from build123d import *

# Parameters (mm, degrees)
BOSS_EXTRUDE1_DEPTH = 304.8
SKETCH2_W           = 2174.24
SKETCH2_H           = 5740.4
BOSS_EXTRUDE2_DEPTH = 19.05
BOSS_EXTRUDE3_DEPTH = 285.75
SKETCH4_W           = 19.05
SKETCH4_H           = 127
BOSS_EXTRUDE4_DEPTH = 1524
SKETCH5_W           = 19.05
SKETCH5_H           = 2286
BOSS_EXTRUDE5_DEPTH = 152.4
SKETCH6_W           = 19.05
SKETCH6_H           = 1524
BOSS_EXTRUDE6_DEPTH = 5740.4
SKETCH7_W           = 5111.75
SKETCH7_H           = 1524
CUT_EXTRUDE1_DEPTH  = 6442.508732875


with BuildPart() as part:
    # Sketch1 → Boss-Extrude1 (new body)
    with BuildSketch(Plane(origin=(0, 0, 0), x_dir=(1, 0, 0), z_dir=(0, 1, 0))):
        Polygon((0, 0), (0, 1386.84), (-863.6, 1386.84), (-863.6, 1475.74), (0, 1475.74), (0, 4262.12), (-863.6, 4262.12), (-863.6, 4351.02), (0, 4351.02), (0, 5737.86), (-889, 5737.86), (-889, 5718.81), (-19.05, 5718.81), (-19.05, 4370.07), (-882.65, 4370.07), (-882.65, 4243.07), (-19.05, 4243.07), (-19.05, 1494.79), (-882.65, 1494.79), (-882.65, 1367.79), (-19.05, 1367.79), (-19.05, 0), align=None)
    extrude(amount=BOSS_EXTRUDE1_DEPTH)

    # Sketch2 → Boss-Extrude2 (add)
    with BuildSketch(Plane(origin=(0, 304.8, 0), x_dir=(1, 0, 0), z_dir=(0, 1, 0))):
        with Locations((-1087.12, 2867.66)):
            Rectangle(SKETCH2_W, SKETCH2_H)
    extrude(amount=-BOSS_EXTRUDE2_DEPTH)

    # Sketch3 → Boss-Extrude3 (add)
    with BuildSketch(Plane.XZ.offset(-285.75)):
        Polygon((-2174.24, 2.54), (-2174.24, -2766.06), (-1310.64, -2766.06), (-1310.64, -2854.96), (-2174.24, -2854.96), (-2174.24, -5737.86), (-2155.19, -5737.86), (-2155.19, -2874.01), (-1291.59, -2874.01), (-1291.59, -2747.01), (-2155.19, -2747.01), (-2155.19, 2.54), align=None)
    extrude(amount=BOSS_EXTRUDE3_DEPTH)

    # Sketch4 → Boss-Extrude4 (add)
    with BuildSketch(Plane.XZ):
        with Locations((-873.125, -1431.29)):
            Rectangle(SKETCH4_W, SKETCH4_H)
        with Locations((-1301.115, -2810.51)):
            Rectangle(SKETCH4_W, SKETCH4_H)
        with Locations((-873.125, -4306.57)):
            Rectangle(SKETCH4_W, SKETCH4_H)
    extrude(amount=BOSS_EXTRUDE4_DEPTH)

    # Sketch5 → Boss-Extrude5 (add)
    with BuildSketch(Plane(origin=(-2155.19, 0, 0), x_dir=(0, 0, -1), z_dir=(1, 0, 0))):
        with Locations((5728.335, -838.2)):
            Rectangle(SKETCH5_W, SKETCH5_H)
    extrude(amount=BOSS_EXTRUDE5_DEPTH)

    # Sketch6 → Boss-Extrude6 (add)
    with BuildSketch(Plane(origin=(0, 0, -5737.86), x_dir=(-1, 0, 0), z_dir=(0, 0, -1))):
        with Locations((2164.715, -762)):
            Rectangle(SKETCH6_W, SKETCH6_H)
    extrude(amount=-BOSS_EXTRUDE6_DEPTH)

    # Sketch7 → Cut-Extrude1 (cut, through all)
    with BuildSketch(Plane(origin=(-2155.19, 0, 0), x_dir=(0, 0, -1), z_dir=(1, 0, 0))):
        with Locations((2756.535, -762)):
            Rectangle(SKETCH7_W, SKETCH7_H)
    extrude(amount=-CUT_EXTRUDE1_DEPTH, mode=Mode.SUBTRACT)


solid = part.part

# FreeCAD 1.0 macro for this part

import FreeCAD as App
import Part
import Sketcher
Q = App.Units.Quantity

doc = App.newDocument("Part")
body = doc.addObject("PartDesign::Body", "Body")

sketch1 = body.newObject("Sketcher::SketchObject", "Sketch")
sketch1.AttachmentSupport = (doc.getObject("XZ_Plane"), [""])
sketch1.MapMode = "FlatFace"
sketch1.addGeometry(Part.LineSegment(App.Vector(0, 0, 0), App.Vector(0, -1386.84, 0)), False)
sketch1.addGeometry(Part.LineSegment(App.Vector(0, -1386.84, 0), App.Vector(-863.6, -1386.84, 0)), False)
sketch1.addGeometry(Part.LineSegment(App.Vector(-863.6, -1386.84, 0), App.Vector(-863.6, -1475.74, 0)), False)
sketch1.addGeometry(Part.LineSegment(App.Vector(-863.6, -1475.74, 0), App.Vector(0, -1475.74, 0)), False)
sketch1.addGeometry(Part.LineSegment(App.Vector(0, -1475.74, 0), App.Vector(0, -4262.12, 0)), False)
sketch1.addGeometry(Part.LineSegment(App.Vector(0, -4262.12, 0), App.Vector(-863.6, -4262.12, 0)), False)
sketch1.addGeometry(Part.LineSegment(App.Vector(-863.6, -4262.12, 0), App.Vector(-863.6, -4351.02, 0)), False)
sketch1.addGeometry(Part.LineSegment(App.Vector(-863.6, -4351.02, 0), App.Vector(0, -4351.02, 0)), False)
sketch1.addGeometry(Part.LineSegment(App.Vector(0, -4351.02, 0), App.Vector(0, -5737.86, 0)), False)
sketch1.addGeometry(Part.LineSegment(App.Vector(0, -5737.86, 0), App.Vector(-889, -5737.86, 0)), False)
sketch1.addGeometry(Part.LineSegment(App.Vector(-889, -5737.86, 0), App.Vector(-889, -5718.81, 0)), False)
sketch1.addGeometry(Part.LineSegment(App.Vector(-889, -5718.81, 0), App.Vector(-19.05, -5718.81, 0)), False)
sketch1.addGeometry(Part.LineSegment(App.Vector(-19.05, -5718.81, 0), App.Vector(-19.05, -4370.07, 0)), False)
sketch1.addGeometry(Part.LineSegment(App.Vector(-19.05, -4370.07, 0), App.Vector(-882.65, -4370.07, 0)), False)
sketch1.addGeometry(Part.LineSegment(App.Vector(-882.65, -4370.07, 0), App.Vector(-882.65, -4243.07, 0)), False)
sketch1.addGeometry(Part.LineSegment(App.Vector(-882.65, -4243.07, 0), App.Vector(-19.05, -4243.07, 0)), False)
sketch1.addGeometry(Part.LineSegment(App.Vector(-19.05, -4243.07, 0), App.Vector(-19.05, -1494.79, 0)), False)
sketch1.addGeometry(Part.LineSegment(App.Vector(-19.05, -1494.79, 0), App.Vector(-882.65, -1494.79, 0)), False)
sketch1.addGeometry(Part.LineSegment(App.Vector(-882.65, -1494.79, 0), App.Vector(-882.65, -1367.79, 0)), False)
sketch1.addGeometry(Part.LineSegment(App.Vector(-882.65, -1367.79, 0), App.Vector(-19.05, -1367.79, 0)), False)
sketch1.addGeometry(Part.LineSegment(App.Vector(-19.05, -1367.79, 0), App.Vector(-19.05, 0, 0)), False)
sketch1.addGeometry(Part.LineSegment(App.Vector(-19.05, 0, 0), App.Vector(0, 0, 0)), False)
sketch1.addConstraint(Sketcher.Constraint("Coincident", 0, 2, 1, 1))
sketch1.addConstraint(Sketcher.Constraint("Coincident", 1, 2, 2, 1))
sketch1.addConstraint(Sketcher.Constraint("Coincident", 2, 2, 3, 1))
sketch1.addConstraint(Sketcher.Constraint("Coincident", 3, 2, 4, 1))
sketch1.addConstraint(Sketcher.Constraint("Coincident", 4, 2, 5, 1))
sketch1.addConstraint(Sketcher.Constraint("Coincident", 5, 2, 6, 1))
sketch1.addConstraint(Sketcher.Constraint("Coincident", 6, 2, 7, 1))
sketch1.addConstraint(Sketcher.Constraint("Coincident", 7, 2, 8, 1))
sketch1.addConstraint(Sketcher.Constraint("Coincident", 8, 2, 9, 1))
sketch1.addConstraint(Sketcher.Constraint("Coincident", 9, 2, 10, 1))
sketch1.addConstraint(Sketcher.Constraint("Coincident", 10, 2, 11, 1))
sketch1.addConstraint(Sketcher.Constraint("Coincident", 11, 2, 12, 1))
sketch1.addConstraint(Sketcher.Constraint("Coincident", 12, 2, 13, 1))
sketch1.addConstraint(Sketcher.Constraint("Coincident", 13, 2, 14, 1))
sketch1.addConstraint(Sketcher.Constraint("Coincident", 14, 2, 15, 1))
sketch1.addConstraint(Sketcher.Constraint("Coincident", 15, 2, 16, 1))
sketch1.addConstraint(Sketcher.Constraint("Coincident", 16, 2, 17, 1))
sketch1.addConstraint(Sketcher.Constraint("Coincident", 17, 2, 18, 1))
sketch1.addConstraint(Sketcher.Constraint("Coincident", 18, 2, 19, 1))
sketch1.addConstraint(Sketcher.Constraint("Coincident", 19, 2, 20, 1))
sketch1.addConstraint(Sketcher.Constraint("Coincident", 20, 2, 21, 1))
sketch1.addConstraint(Sketcher.Constraint("Coincident", 21, 2, 0, 1))
sketch1.addConstraint(Sketcher.Constraint("Vertical", 0))
sketch1.addConstraint(Sketcher.Constraint("Horizontal", 1))
sketch1.addConstraint(Sketcher.Constraint("Vertical", 2))
sketch1.addConstraint(Sketcher.Constraint("Horizontal", 3))
sketch1.addConstraint(Sketcher.Constraint("Vertical", 4))
sketch1.addConstraint(Sketcher.Constraint("Horizontal", 5))
sketch1.addConstraint(Sketcher.Constraint("Vertical", 6))
sketch1.addConstraint(Sketcher.Constraint("Horizontal", 7))
sketch1.addConstraint(Sketcher.Constraint("Vertical", 8))
sketch1.addConstraint(Sketcher.Constraint("Horizontal", 9))
sketch1.addConstraint(Sketcher.Constraint("Vertical", 10))
sketch1.addConstraint(Sketcher.Constraint("Horizontal", 11))
sketch1.addConstraint(Sketcher.Constraint("Vertical", 12))
sketch1.addConstraint(Sketcher.Constraint("Horizontal", 13))
sketch1.addConstraint(Sketcher.Constraint("Vertical", 14))
sketch1.addConstraint(Sketcher.Constraint("Horizontal", 15))
sketch1.addConstraint(Sketcher.Constraint("Vertical", 16))
sketch1.addConstraint(Sketcher.Constraint("Horizontal", 17))
sketch1.addConstraint(Sketcher.Constraint("Vertical", 18))
sketch1.addConstraint(Sketcher.Constraint("Horizontal", 19))
sketch1.addConstraint(Sketcher.Constraint("Vertical", 20))
sketch1.addConstraint(Sketcher.Constraint("Horizontal", 21))
sketch1.addConstraint(Sketcher.Constraint("Coincident", 21, 2, -1, 1))
sketch1.addConstraint(Sketcher.Constraint("PointOnObject", 3, 2, -2))
sketch1.addConstraint(Sketcher.Constraint("PointOnObject", 7, 2, -2))
sketch1.addConstraint(Sketcher.Constraint("Vertical", 2, 2, 5, 2))
sketch1.addConstraint(Sketcher.Constraint("Vertical", 12, 2, 15, 2))
sketch1.addConstraint(Sketcher.Constraint("Vertical", 14, 2, 17, 2))
sketch1.addConstraint(Sketcher.Constraint("Vertical", 16, 2, 19, 2))
sketch1.addConstraint(Sketcher.Constraint("Equal", 7, 13))
sketch1.addConstraint(Sketcher.Constraint("Equal", 2, 6))
sketch1.addConstraint(Sketcher.Constraint("Equal", 0, 8))
sketch1.addConstraint(Sketcher.Constraint("Equal", 21, 10))
sketch1.addConstraint(Sketcher.Constraint("Equal", 14, 18))
sketch1.addConstraint(Sketcher.Constraint("DistanceX", 1, 2, 1, 1, Q("34 in")))
sketch1.addConstraint(Sketcher.Constraint("DistanceX", 9, 2, 9, 1, Q("35 in")))
sketch1.addConstraint(Sketcher.Constraint("DistanceY", 14, 1, 14, 2, Q("5 in")))
sketch1.addConstraint(Sketcher.Constraint("DistanceY", 0, 2, 0, 1, Q("54.6 in")))
sketch1.addConstraint(Sketcher.Constraint("DistanceY", 2, 2, 2, 1, Q("3.5 in")))
sketch1.addConstraint(Sketcher.Constraint("DistanceY", 4, 2, 4, 1, Q("109.7 in")))
sketch1.addConstraint(Sketcher.Constraint("DistanceY", 12, 1, 12, 2, Q("53.1 in")))
sketch1.addConstraint(Sketcher.Constraint("DistanceY", 16, 1, 16, 2, Q("108.2 in")))
sketch1.addConstraint(Sketcher.Constraint("DistanceX", 11, 1, 11, 2, Q("34.25 in")))
pad1 = body.newObject("PartDesign::Pad", "Pad")
pad1.Profile = sketch1
pad1.Length = Q("12 in")
pad1.Reversed = True

sketch2 = body.newObject("Sketcher::SketchObject", "Sketch001")
sketch2.AttachmentSupport = (doc.getObject("XZ_Plane"), [""])
sketch2.MapMode = "FlatFace"
sketch2.AttachmentOffset = App.Placement(App.Vector(0, 0, -12 * 25.4), App.Rotation())
sketch2.addGeometry(Part.LineSegment(App.Vector(-2174.24, -5737.86, 0), App.Vector(-2174.24, 2.54, 0)), False)
sketch2.addGeometry(Part.LineSegment(App.Vector(-2174.24, 2.54, 0), App.Vector(0, 2.54, 0)), False)
sketch2.addGeometry(Part.LineSegment(App.Vector(0, 2.54, 0), App.Vector(0, -5737.86, 0)), False)
sketch2.addGeometry(Part.LineSegment(App.Vector(0, -5737.86, 0), App.Vector(-2174.24, -5737.86, 0)), False)
sketch2.addConstraint(Sketcher.Constraint("Coincident", 0, 2, 1, 1))
sketch2.addConstraint(Sketcher.Constraint("Coincident", 1, 2, 2, 1))
sketch2.addConstraint(Sketcher.Constraint("Coincident", 2, 2, 3, 1))
sketch2.addConstraint(Sketcher.Constraint("Coincident", 3, 2, 0, 1))
sketch2.addConstraint(Sketcher.Constraint("Vertical", 0))
sketch2.addConstraint(Sketcher.Constraint("Horizontal", 1))
sketch2.addConstraint(Sketcher.Constraint("Vertical", 2))
sketch2.addConstraint(Sketcher.Constraint("Horizontal", 3))
sketch2.addConstraint(Sketcher.Constraint("PointOnObject", 1, 2, -2))
sketch2.addConstraint(Sketcher.Constraint("DistanceY", 0, 1, 0, 2, Q("226 in")))
sketch2.addConstraint(Sketcher.Constraint("DistanceX", 1, 1, 1, 2, Q("85.6 in")))
sketch2.addConstraint(Sketcher.Constraint("DistanceY", -1, 1, 0, 2, Q("0.1 in")))
pad2 = body.newObject("PartDesign::Pad", "Pad001")
pad2.Profile = sketch2
pad2.Length = Q("0.75 in")

sketch3 = body.newObject("Sketcher::SketchObject", "Sketch002")
sketch3.AttachmentSupport = (doc.getObject("XZ_Plane"), [""])
sketch3.MapMode = "FlatFace"
sketch3.AttachmentOffset = App.Placement(App.Vector(0, 0, -11.25 * 25.4), App.Rotation())
sketch3.addGeometry(Part.LineSegment(App.Vector(-2174.24, 2.54, 0), App.Vector(-2174.24, -2766.06, 0)), False)
sketch3.addGeometry(Part.LineSegment(App.Vector(-2174.24, -2766.06, 0), App.Vector(-1310.64, -2766.06, 0)), False)
sketch3.addGeometry(Part.LineSegment(App.Vector(-1310.64, -2766.06, 0), App.Vector(-1310.64, -2854.96, 0)), False)
sketch3.addGeometry(Part.LineSegment(App.Vector(-1310.64, -2854.96, 0), App.Vector(-2174.24, -2854.96, 0)), False)
sketch3.addGeometry(Part.LineSegment(App.Vector(-2174.24, -2854.96, 0), App.Vector(-2174.24, -5737.86, 0)), False)
sketch3.addGeometry(Part.LineSegment(App.Vector(-2174.24, -5737.86, 0), App.Vector(-2155.19, -5737.86, 0)), False)
sketch3.addGeometry(Part.LineSegment(App.Vector(-2155.19, -5737.86, 0), App.Vector(-2155.19, -2874.01, 0)), False)
sketch3.addGeometry(Part.LineSegment(App.Vector(-2155.19, -2874.01, 0), App.Vector(-1291.59, -2874.01, 0)), False)
sketch3.addGeometry(Part.LineSegment(App.Vector(-1291.59, -2874.01, 0), App.Vector(-1291.59, -2747.01, 0)), False)
sketch3.addGeometry(Part.LineSegment(App.Vector(-1291.59, -2747.01, 0), App.Vector(-2155.19, -2747.01, 0)), False)
sketch3.addGeometry(Part.LineSegment(App.Vector(-2155.19, -2747.01, 0), App.Vector(-2155.19, 2.54, 0)), False)
sketch3.addGeometry(Part.LineSegment(App.Vector(-2155.19, 2.54, 0), App.Vector(-2174.24, 2.54, 0)), False)
sketch3.addConstraint(Sketcher.Constraint("Coincident", 0, 2, 1, 1))
sketch3.addConstraint(Sketcher.Constraint("Coincident", 1, 2, 2, 1))
sketch3.addConstraint(Sketcher.Constraint("Coincident", 2, 2, 3, 1))
sketch3.addConstraint(Sketcher.Constraint("Coincident", 3, 2, 4, 1))
sketch3.addConstraint(Sketcher.Constraint("Coincident", 4, 2, 5, 1))
sketch3.addConstraint(Sketcher.Constraint("Coincident", 5, 2, 6, 1))
sketch3.addConstraint(Sketcher.Constraint("Coincident", 6, 2, 7, 1))
sketch3.addConstraint(Sketcher.Constraint("Coincident", 7, 2, 8, 1))
sketch3.addConstraint(Sketcher.Constraint("Coincident", 8, 2, 9, 1))
sketch3.addConstraint(Sketcher.Constraint("Coincident", 9, 2, 10, 1))
sketch3.addConstraint(Sketcher.Constraint("Coincident", 10, 2, 11, 1))
sketch3.addConstraint(Sketcher.Constraint("Coincident", 11, 2, 0, 1))
sketch3.addConstraint(Sketcher.Constraint("Vertical", 0))
sketch3.addConstraint(Sketcher.Constraint("Horizontal", 1))
sketch3.addConstraint(Sketcher.Constraint("Vertical", 2))
sketch3.addConstraint(Sketcher.Constraint("Horizontal", 3))
sketch3.addConstraint(Sketcher.Constraint("Vertical", 4))
sketch3.addConstraint(Sketcher.Constraint("Horizontal", 5))
sketch3.addConstraint(Sketcher.Constraint("Vertical", 6))
sketch3.addConstraint(Sketcher.Constraint("Horizontal", 7))
sketch3.addConstraint(Sketcher.Constraint("Vertical", 8))
sketch3.addConstraint(Sketcher.Constraint("Horizontal", 9))
sketch3.addConstraint(Sketcher.Constraint("Vertical", 10))
sketch3.addConstraint(Sketcher.Constraint("Horizontal", 11))
sketch3.addConstraint(Sketcher.Constraint("Vertical", 0, 2, 3, 2))
sketch3.addConstraint(Sketcher.Constraint("Vertical", 6, 2, 9, 2))
sketch3.addConstraint(Sketcher.Constraint("Equal", 3, 7))
sketch3.addConstraint(Sketcher.Constraint("DistanceX", 1, 1, 1, 2, Q("34 in")))
sketch3.addConstraint(Sketcher.Constraint("DistanceY", 0, 2, 0, 1, Q("109 in")))
sketch3.addConstraint(Sketcher.Constraint("DistanceY", 8, 1, 8, 2, Q("5 in")))
sketch3.addConstraint(Sketcher.Constraint("DistanceY", 2, 2, 2, 1, Q("3.5 in")))
sketch3.addConstraint(Sketcher.Constraint("DistanceY", 4, 2, 4, 1, Q("113.5 in")))
sketch3.addConstraint(Sketcher.Constraint("DistanceX", 5, 1, 5, 2, Q("0.75 in")))
sketch3.addConstraint(Sketcher.Constraint("DistanceY", 6, 1, 6, 2, Q("112.75 in")))
sketch3.addConstraint(Sketcher.Constraint("DistanceX", 0, 2, -1, 1, Q("85.6 in")))
sketch3.addConstraint(Sketcher.Constraint("DistanceY", 0, 2, -1, 1, Q("108.9 in")))
pad3 = body.newObject("PartDesign::Pad", "Pad002")
pad3.Profile = sketch3
pad3.Length = Q("11.25 in")

sketch4 = body.newObject("Sketcher::SketchObject", "Sketch003")
sketch4.AttachmentSupport = (doc.getObject("XZ_Plane"), [""])
sketch4.MapMode = "FlatFace"
sketch4.addGeometry(Part.LineSegment(App.Vector(-882.65, -1367.79, 0), App.Vector(-882.65, -1494.79, 0)), False)
sketch4.addGeometry(Part.LineSegment(App.Vector(-882.65, -1494.79, 0), App.Vector(-863.6, -1494.79, 0)), False)
sketch4.addGeometry(Part.LineSegment(App.Vector(-863.6, -1494.79, 0), App.Vector(-863.6, -1367.79, 0)), False)
sketch4.addGeometry(Part.LineSegment(App.Vector(-863.6, -1367.79, 0), App.Vector(-882.65, -1367.79, 0)), False)
sketch4.addGeometry(Part.LineSegment(App.Vector(-1310.64, -2747.01, 0), App.Vector(-1310.64, -2874.01, 0)), False)
sketch4.addGeometry(Part.LineSegment(App.Vector(-1310.64, -2874.01, 0), App.Vector(-1291.59, -2874.01, 0)), False)
sketch4.addGeometry(Part.LineSegment(App.Vector(-1291.59, -2874.01, 0), App.Vector(-1291.59, -2747.01, 0)), False)
sketch4.addGeometry(Part.LineSegment(App.Vector(-1291.59, -2747.01, 0), App.Vector(-1310.64, -2747.01, 0)), False)
sketch4.addGeometry(Part.LineSegment(App.Vector(-882.65, -4243.07, 0), App.Vector(-882.65, -4370.07, 0)), False)
sketch4.addGeometry(Part.LineSegment(App.Vector(-882.65, -4370.07, 0), App.Vector(-863.6, -4370.07, 0)), False)
sketch4.addGeometry(Part.LineSegment(App.Vector(-863.6, -4370.07, 0), App.Vector(-863.6, -4243.07, 0)), False)
sketch4.addGeometry(Part.LineSegment(App.Vector(-863.6, -4243.07, 0), App.Vector(-882.65, -4243.07, 0)), False)
sketch4.addConstraint(Sketcher.Constraint("Coincident", 0, 2, 1, 1))
sketch4.addConstraint(Sketcher.Constraint("Coincident", 1, 2, 2, 1))
sketch4.addConstraint(Sketcher.Constraint("Coincident", 2, 2, 3, 1))
sketch4.addConstraint(Sketcher.Constraint("Coincident", 3, 2, 0, 1))
sketch4.addConstraint(Sketcher.Constraint("Coincident", 4, 2, 5, 1))
sketch4.addConstraint(Sketcher.Constraint("Coincident", 5, 2, 6, 1))
sketch4.addConstraint(Sketcher.Constraint("Coincident", 6, 2, 7, 1))
sketch4.addConstraint(Sketcher.Constraint("Coincident", 7, 2, 4, 1))
sketch4.addConstraint(Sketcher.Constraint("Coincident", 8, 2, 9, 1))
sketch4.addConstraint(Sketcher.Constraint("Coincident", 9, 2, 10, 1))
sketch4.addConstraint(Sketcher.Constraint("Coincident", 10, 2, 11, 1))
sketch4.addConstraint(Sketcher.Constraint("Coincident", 11, 2, 8, 1))
sketch4.addConstraint(Sketcher.Constraint("Vertical", 0))
sketch4.addConstraint(Sketcher.Constraint("Horizontal", 1))
sketch4.addConstraint(Sketcher.Constraint("Vertical", 2))
sketch4.addConstraint(Sketcher.Constraint("Horizontal", 3))
sketch4.addConstraint(Sketcher.Constraint("Vertical", 4))
sketch4.addConstraint(Sketcher.Constraint("Horizontal", 5))
sketch4.addConstraint(Sketcher.Constraint("Vertical", 6))
sketch4.addConstraint(Sketcher.Constraint("Horizontal", 7))
sketch4.addConstraint(Sketcher.Constraint("Vertical", 8))
sketch4.addConstraint(Sketcher.Constraint("Horizontal", 9))
sketch4.addConstraint(Sketcher.Constraint("Vertical", 10))
sketch4.addConstraint(Sketcher.Constraint("Horizontal", 11))
sketch4.addConstraint(Sketcher.Constraint("Vertical", 3, 2, 8, 2))
sketch4.addConstraint(Sketcher.Constraint("Vertical", 2, 2, 9, 2))
sketch4.addConstraint(Sketcher.Constraint("Equal", 3, 5))
sketch4.addConstraint(Sketcher.Constraint("Equal", 2, 4))
sketch4.addConstraint(Sketcher.Constraint("Equal", 6, 8))
sketch4.addConstraint(Sketcher.Constraint("DistanceY", 0, 2, 0, 1, Q("5 in")))
sketch4.addConstraint(Sketcher.Constraint("DistanceX", 1, 2, -1, 1, Q("34 in")))
sketch4.addConstraint(Sketcher.Constraint("DistanceX", 1, 1, 1, 2, Q("0.75 in")))
sketch4.addConstraint(Sketcher.Constraint("DistanceX", 4, 2, -1, 1, Q("51.6 in")))
sketch4.addConstraint(Sketcher.Constraint("DistanceY", 4, 2, 0, 2, Q("54.3 in")))
sketch4.addConstraint(Sketcher.Constraint("DistanceY", 8, 2, 5, 2, Q("58.9 in")))
sketch4.addConstraint(Sketcher.Constraint("DistanceY", 0, 2, -1, 1, Q("58.85 in")))
pad4 = body.newObject("PartDesign::Pad", "Pad003")
pad4.Profile = sketch4
pad4.Length = Q("60 in")

sketch5 = body.newObject("Sketcher::SketchObject", "Sketch004")
sketch5.AttachmentSupport = (doc.getObject("YZ_Plane"), [""])
sketch5.MapMode = "FlatFace"
sketch5.AttachmentOffset = App.Placement(App.Vector(0, 0, -84.85 * 25.4), App.Rotation())
sketch5.addGeometry(Part.LineSegment(App.Vector(304.8, -5718.81, 0), App.Vector(-1981.2, -5718.81, 0)), False)
sketch5.addGeometry(Part.LineSegment(App.Vector(-1981.2, -5718.81, 0), App.Vector(-1981.2, -5737.86, 0)), False)
sketch5.addGeometry(Part.LineSegment(App.Vector(-1981.2, -5737.86, 0), App.Vector(304.8, -5737.86, 0)), False)
sketch5.addGeometry(Part.LineSegment(App.Vector(304.8, -5737.86, 0), App.Vector(304.8, -5718.81, 0)), False)
sketch5.addConstraint(Sketcher.Constraint("Coincident", 0, 2, 1, 1))
sketch5.addConstraint(Sketcher.Constraint("Coincident", 1, 2, 2, 1))
sketch5.addConstraint(Sketcher.Constraint("Coincident", 2, 2, 3, 1))
sketch5.addConstraint(Sketcher.Constraint("Coincident", 3, 2, 0, 1))
sketch5.addConstraint(Sketcher.Constraint("Horizontal", 0))
sketch5.addConstraint(Sketcher.Constraint("Vertical", 1))
sketch5.addConstraint(Sketcher.Constraint("Horizontal", 2))
sketch5.addConstraint(Sketcher.Constraint("Vertical", 3))
sketch5.addConstraint(Sketcher.Constraint("DistanceX", 0, 2, 0, 1, Q("90 in")))
sketch5.addConstraint(Sketcher.Constraint("DistanceX", 0, 2, -1, 1, Q("78 in")))
sketch5.addConstraint(Sketcher.Constraint("DistanceY", 1, 2, 1, 1, Q("0.75 in")))
sketch5.addConstraint(Sketcher.Constraint("DistanceY", 1, 2, -1, 1, Q("225.9 in")))
pad5 = body.newObject("PartDesign::Pad", "Pad004")
pad5.Profile = sketch5
pad5.Length = Q("6 in")

sketch6 = body.newObject("Sketcher::SketchObject", "Sketch005")
sketch6.AttachmentSupport = (doc.getObject("XY_Plane"), [""])
sketch6.MapMode = "FlatFace"
sketch6.AttachmentOffset = App.Placement(App.Vector(0, 0, -225.9 * 25.4), App.Rotation())
sketch6.addGeometry(Part.LineSegment(App.Vector(-2155.19, 0, 0), App.Vector(-2155.19, -1524, 0)), False)
sketch6.addGeometry(Part.LineSegment(App.Vector(-2155.19, -1524, 0), App.Vector(-2174.24, -1524, 0)), False)
sketch6.addGeometry(Part.LineSegment(App.Vector(-2174.24, -1524, 0), App.Vector(-2174.24, 0, 0)), False)
sketch6.addGeometry(Part.LineSegment(App.Vector(-2174.24, 0, 0), App.Vector(-2155.19, 0, 0)), False)
sketch6.addConstraint(Sketcher.Constraint("Coincident", 0, 2, 1, 1))
sketch6.addConstraint(Sketcher.Constraint("Coincident", 1, 2, 2, 1))
sketch6.addConstraint(Sketcher.Constraint("Coincident", 2, 2, 3, 1))
sketch6.addConstraint(Sketcher.Constraint("Coincident", 3, 2, 0, 1))
sketch6.addConstraint(Sketcher.Constraint("Vertical", 0))
sketch6.addConstraint(Sketcher.Constraint("Horizontal", 1))
sketch6.addConstraint(Sketcher.Constraint("Vertical", 2))
sketch6.addConstraint(Sketcher.Constraint("Horizontal", 3))
sketch6.addConstraint(Sketcher.Constraint("PointOnObject", 2, 2, -1))
sketch6.addConstraint(Sketcher.Constraint("DistanceY", 0, 2, 0, 1, Q("60 in")))
sketch6.addConstraint(Sketcher.Constraint("DistanceX", 1, 2, 1, 1, Q("0.75 in")))
sketch6.addConstraint(Sketcher.Constraint("DistanceX", 1, 2, -1, 1, Q("85.6 in")))
pad6 = body.newObject("PartDesign::Pad", "Pad005")
pad6.Profile = sketch6
pad6.Length = Q("226 in")

sketch7 = body.newObject("Sketcher::SketchObject", "Sketch006")
sketch7.AttachmentSupport = (doc.getObject("YZ_Plane"), [""])
sketch7.MapMode = "FlatFace"
sketch7.AttachmentOffset = App.Placement(App.Vector(0, 0, -84.85 * 25.4), App.Rotation())
sketch7.addGeometry(Part.LineSegment(App.Vector(0, -200.66, 0), App.Vector(-1524, -200.66, 0)), False)
sketch7.addGeometry(Part.LineSegment(App.Vector(-1524, -200.66, 0), App.Vector(-1524, -5312.41, 0)), False)
sketch7.addGeometry(Part.LineSegment(App.Vector(-1524, -5312.41, 0), App.Vector(0, -5312.41, 0)), False)
sketch7.addGeometry(Part.LineSegment(App.Vector(0, -5312.41, 0), App.Vector(0, -200.66, 0)), False)
sketch7.addConstraint(Sketcher.Constraint("Coincident", 0, 2, 1, 1))
sketch7.addConstraint(Sketcher.Constraint("Coincident", 1, 2, 2, 1))
sketch7.addConstraint(Sketcher.Constraint("Coincident", 2, 2, 3, 1))
sketch7.addConstraint(Sketcher.Constraint("Coincident", 3, 2, 0, 1))
sketch7.addConstraint(Sketcher.Constraint("Horizontal", 0))
sketch7.addConstraint(Sketcher.Constraint("Vertical", 1))
sketch7.addConstraint(Sketcher.Constraint("Horizontal", 2))
sketch7.addConstraint(Sketcher.Constraint("Vertical", 3))
sketch7.addConstraint(Sketcher.Constraint("PointOnObject", 2, 2, -2))
sketch7.addConstraint(Sketcher.Constraint("DistanceX", 0, 2, 0, 1, Q("60 in")))
sketch7.addConstraint(Sketcher.Constraint("DistanceY", 1, 2, 1, 1, Q("201.25 in")))
sketch7.addConstraint(Sketcher.Constraint("DistanceY", 0, 2, -1, 1, Q("7.9 in")))
pocket1 = body.newObject("PartDesign::Pocket", "Pocket")
pocket1.Profile = sketch7
pocket1.Type = "ThroughAll"

doc.recompute()
